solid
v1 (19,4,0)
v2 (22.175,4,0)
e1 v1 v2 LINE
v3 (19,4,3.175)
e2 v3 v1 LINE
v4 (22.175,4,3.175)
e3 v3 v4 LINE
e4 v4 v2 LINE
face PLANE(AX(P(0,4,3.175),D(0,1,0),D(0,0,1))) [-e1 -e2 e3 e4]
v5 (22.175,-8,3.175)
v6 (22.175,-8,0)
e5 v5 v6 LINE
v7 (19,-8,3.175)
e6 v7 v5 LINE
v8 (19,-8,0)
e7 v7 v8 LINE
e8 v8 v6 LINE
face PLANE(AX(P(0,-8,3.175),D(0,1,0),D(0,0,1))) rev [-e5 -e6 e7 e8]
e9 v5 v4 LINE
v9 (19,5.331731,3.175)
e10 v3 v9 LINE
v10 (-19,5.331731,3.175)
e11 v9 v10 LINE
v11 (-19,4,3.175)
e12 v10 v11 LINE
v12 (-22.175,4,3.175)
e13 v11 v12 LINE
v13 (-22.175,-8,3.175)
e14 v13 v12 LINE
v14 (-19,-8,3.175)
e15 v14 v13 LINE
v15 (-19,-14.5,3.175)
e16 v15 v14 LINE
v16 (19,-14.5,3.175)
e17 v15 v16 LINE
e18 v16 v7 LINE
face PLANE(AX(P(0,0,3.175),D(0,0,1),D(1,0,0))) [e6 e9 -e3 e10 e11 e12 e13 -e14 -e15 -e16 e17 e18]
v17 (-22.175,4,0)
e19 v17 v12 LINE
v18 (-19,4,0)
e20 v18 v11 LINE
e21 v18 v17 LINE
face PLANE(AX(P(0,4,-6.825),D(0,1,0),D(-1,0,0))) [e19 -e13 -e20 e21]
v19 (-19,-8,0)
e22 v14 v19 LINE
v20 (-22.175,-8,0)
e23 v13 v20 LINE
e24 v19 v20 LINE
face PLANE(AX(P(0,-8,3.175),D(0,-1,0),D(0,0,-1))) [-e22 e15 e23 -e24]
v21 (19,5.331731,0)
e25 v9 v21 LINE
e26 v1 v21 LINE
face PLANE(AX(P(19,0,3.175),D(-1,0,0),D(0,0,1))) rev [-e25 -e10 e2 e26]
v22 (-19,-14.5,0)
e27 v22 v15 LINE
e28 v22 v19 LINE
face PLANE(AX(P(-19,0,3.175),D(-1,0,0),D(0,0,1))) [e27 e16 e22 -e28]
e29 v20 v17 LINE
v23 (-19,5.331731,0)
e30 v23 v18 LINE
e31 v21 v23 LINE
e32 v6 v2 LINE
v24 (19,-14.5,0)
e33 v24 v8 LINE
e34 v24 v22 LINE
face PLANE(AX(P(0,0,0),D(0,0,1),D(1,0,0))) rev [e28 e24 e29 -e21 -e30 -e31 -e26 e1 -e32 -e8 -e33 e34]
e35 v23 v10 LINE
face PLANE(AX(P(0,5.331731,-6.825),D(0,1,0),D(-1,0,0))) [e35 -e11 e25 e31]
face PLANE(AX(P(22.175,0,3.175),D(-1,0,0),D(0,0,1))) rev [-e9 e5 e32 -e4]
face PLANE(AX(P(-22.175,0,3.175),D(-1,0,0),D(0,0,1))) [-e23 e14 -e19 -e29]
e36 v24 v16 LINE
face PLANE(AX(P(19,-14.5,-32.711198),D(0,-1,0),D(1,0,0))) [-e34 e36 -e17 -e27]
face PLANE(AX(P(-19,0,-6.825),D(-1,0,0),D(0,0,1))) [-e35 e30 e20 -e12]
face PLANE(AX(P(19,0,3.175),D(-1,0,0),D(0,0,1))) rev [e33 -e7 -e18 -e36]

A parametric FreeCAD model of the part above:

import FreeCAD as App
import Part
import Sketcher


def add_polygon(sketch, points):
    """Adds a closed chain of lines whose ends are joined by coincident constraints."""
    first, n = sketch.GeometryCount, len(points)
    for a, b in zip(points, points[1:] + points[:1]):
        sketch.addGeometry(Part.LineSegment(App.Vector(*a, 0), App.Vector(*b, 0)), False)
    for i in range(n):
        sketch.addConstraint(Sketcher.Constraint("Coincident", first + i, 2, first + (i + 1) % n, 1))

doc = App.newDocument("Part")
body = doc.addObject("PartDesign::Body", "Body")

# Sketch on XY plane
sketch1 = body.newObject("Sketcher::SketchObject", "Sketch")
sketch1.AttachmentSupport = (doc.getObject("XY_Plane"), [""])
sketch1.MapMode = "FlatFace"
add_polygon(sketch1, [(19, 5.3), (-19, 12.5), (-19, 10), (-22.2, 10), (-22.2, -8), (-19, -8), (-19, -12.5), (19, -12.5), (19, -8), (22.2, -8), (22.2, 4), (19, 4)])  # lines 0-11
sketch1.addConstraint(Sketcher.Constraint("Vertical", 1))
sketch1.addConstraint(Sketcher.Constraint("Horizontal", 2))
sketch1.addConstraint(Sketcher.Constraint("Vertical", 3))
sketch1.addConstraint(Sketcher.Constraint("Horizontal", 4))
sketch1.addConstraint(Sketcher.Constraint("Vertical", 5))
sketch1.addConstraint(Sketcher.Constraint("Horizontal", 6))
sketch1.addConstraint(Sketcher.Constraint("Vertical", 7))
sketch1.addConstraint(Sketcher.Constraint("Horizontal", 8))
sketch1.addConstraint(Sketcher.Constraint("Vertical", 9))
sketch1.addConstraint(Sketcher.Constraint("Horizontal", 10))
sketch1.addConstraint(Sketcher.Constraint("Vertical", 11))
sketch1.addConstraint(Sketcher.Constraint("Symmetric", 0, 2, 6, 2, -1, 1))
sketch1.addConstraint(Sketcher.Constraint("Symmetric", 4, 2, 7, 2, -2))
sketch1.addConstraint(Sketcher.Constraint("Vertical", 7, 2, 10, 2))
sketch1.addConstraint(Sketcher.Constraint("Equal", 4, 8))
sketch1.addConstraint(Sketcher.Constraint("DistanceX", 6, 1, 6, 2, 38.0))
sketch1.addConstraint(Sketcher.Constraint("DistanceY", 3, 2, 3, 1, 18.0))
sketch1.addConstraint(Sketcher.Constraint("DistanceY", 9, 1, 9, 2, 12.0))
sketch1.addConstraint(Sketcher.Constraint("DistanceY", 1, 2, 1, 1, 2.5))
sketch1.addConstraint(Sketcher.Constraint("DistanceY", 5, 2, 5, 1, 4.5))
sketch1.addConstraint(Sketcher.Constraint("DistanceX", 2, 2, 2, 1, 3.175))
sketch1.addConstraint(Sketcher.Constraint("DistanceY", 11, 1, 11, 2, 1.331731))
pad1 = body.newObject("PartDesign::Pad", "Pad")
pad1.Profile = sketch1
pad1.Length = 3.175

# Sketch on XY plane
sketch2 = body.newObject("Sketcher::SketchObject", "Sketch001")
sketch2.AttachmentSupport = (doc.getObject("XY_Plane"), [""])
sketch2.MapMode = "FlatFace"
sketch2.AttachmentOffset = App.Placement(App.Vector(0, 0, 3.175), App.Rotation())
add_polygon(sketch2, [(-13.7, -12.5), (-13.7, -14.5), (19, -14.5), (19, -12.5)])  # lines 0-3
sketch2.addConstraint(Sketcher.Constraint("Vertical", 0))
sketch2.addConstraint(Sketcher.Constraint("Horizontal", 1))
sketch2.addConstraint(Sketcher.Constraint("Vertical", 2))
sketch2.addConstraint(Sketcher.Constraint("Horizontal", 3))
sketch2.addConstraint(Sketcher.Constraint("DistanceY", 0, 2, 0, 1, 2.0))
sketch2.addConstraint(Sketcher.Constraint("DistanceX", -1, 1, 1, 2, 19.0))
sketch2.addConstraint(Sketcher.Constraint("DistanceX", 1, 1, 1, 2, 32.65))
sketch2.addConstraint(Sketcher.Constraint("DistanceY", 0, 2, -1, 1, 14.5))
pad2 = body.newObject("PartDesign::Pad", "Pad001")
pad2.Profile = sketch2
pad2.Length = 3.175
pad2.Reversed = True

# Sketch on XY plane
sketch3 = body.newObject("Sketcher::SketchObject", "Sketch002")
sketch3.AttachmentSupport = (doc.getObject("XY_Plane"), [""])
sketch3.MapMode = "FlatFace"
sketch3.AttachmentOffset = App.Placement(App.Vector(0, 0, 3.175), App.Rotation())
add_polygon(sketch3, [(-22.2, 4), (-19, 4), (-19, 5.3), (19, 5.3), (-11.8, 11.1), (-19, 12.5), (-19, 10), (-22.2, 10)])  # lines 0-7
sketch3.addConstraint(Sketcher.Constraint("Horizontal", 0))
sketch3.addConstraint(Sketcher.Constraint("Vertical", 1))
sketch3.addConstraint(Sketcher.Constraint("Horizontal", 2))
sketch3.addConstraint(Sketcher.Constraint("Vertical", 5))
sketch3.addConstraint(Sketcher.Constraint("Horizontal", 6))
sketch3.addConstraint(Sketcher.Constraint("Vertical", 7))
sketch3.addConstraint(Sketcher.Constraint("Parallel", 3, 4))
sketch3.addConstraint(Sketcher.Constraint("Vertical", 1, 2, 4, 2))
sketch3.addConstraint(Sketcher.Constraint("DistanceX", 2, 1, 2, 2, 38.0))
sketch3.addConstraint(Sketcher.Constraint("DistanceY", 7, 2, 7, 1, 6.0))
sketch3.addConstraint(Sketcher.Constraint("DistanceY", 5, 2, 5, 1, 2.5))
sketch3.addConstraint(Sketcher.Constraint("DistanceX", 0, 2, -1, 1, 19.0))
sketch3.addConstraint(Sketcher.Constraint("DistanceY", -1, 1, 0, 2, 4.0))
sketch3.addConstraint(Sketcher.Constraint("DistanceX", 0, 1, 0, 2, 3.175))
sketch3.addConstraint(Sketcher.Constraint("DistanceY", 1, 1, 1, 2, 1.331731))
sketch3.addConstraint(Sketcher.Constraint("Distance", 4, 7.303352))
pocket1 = body.newObject("PartDesign::Pocket", "Pocket")
pocket1.Profile = sketch3
pocket1.Length = 10

# Sketch on XY plane
sketch4 = body.newObject("Sketcher::SketchObject", "Sketch003")
sketch4.AttachmentSupport = (doc.getObject("XY_Plane"), [""])
sketch4.MapMode = "FlatFace"
sketch4.AttachmentOffset = App.Placement(App.Vector(0, 0, 3.175), App.Rotation())
add_polygon(sketch4, [(-19, -12.5), (-19, -14.5), (-13.7, -14.5), (-13.7, -12.5)])  # lines 0-3
sketch4.addConstraint(Sketcher.Constraint("Vertical", 0))
sketch4.addConstraint(Sketcher.Constraint("Horizontal", 1))
sketch4.addConstraint(Sketcher.Constraint("Vertical", 2))
sketch4.addConstraint(Sketcher.Constraint("Horizontal", 3))
sketch4.addConstraint(Sketcher.Constraint("DistanceY", 0, 2, 0, 1, 2.0))
sketch4.addConstraint(Sketcher.Constraint("DistanceX", 0, 2, -1, 1, 19.0))
sketch4.addConstraint(Sketcher.Constraint("DistanceX", 1, 1, 1, 2, 5.35))
sketch4.addConstraint(Sketcher.Constraint("DistanceY", 0, 2, -1, 1, 14.5))
pad3 = body.newObject("PartDesign::Pad", "Pad002")
pad3.Profile = sketch4
pad3.Length = 3.175
pad3.Reversed = True

doc.recompute()
